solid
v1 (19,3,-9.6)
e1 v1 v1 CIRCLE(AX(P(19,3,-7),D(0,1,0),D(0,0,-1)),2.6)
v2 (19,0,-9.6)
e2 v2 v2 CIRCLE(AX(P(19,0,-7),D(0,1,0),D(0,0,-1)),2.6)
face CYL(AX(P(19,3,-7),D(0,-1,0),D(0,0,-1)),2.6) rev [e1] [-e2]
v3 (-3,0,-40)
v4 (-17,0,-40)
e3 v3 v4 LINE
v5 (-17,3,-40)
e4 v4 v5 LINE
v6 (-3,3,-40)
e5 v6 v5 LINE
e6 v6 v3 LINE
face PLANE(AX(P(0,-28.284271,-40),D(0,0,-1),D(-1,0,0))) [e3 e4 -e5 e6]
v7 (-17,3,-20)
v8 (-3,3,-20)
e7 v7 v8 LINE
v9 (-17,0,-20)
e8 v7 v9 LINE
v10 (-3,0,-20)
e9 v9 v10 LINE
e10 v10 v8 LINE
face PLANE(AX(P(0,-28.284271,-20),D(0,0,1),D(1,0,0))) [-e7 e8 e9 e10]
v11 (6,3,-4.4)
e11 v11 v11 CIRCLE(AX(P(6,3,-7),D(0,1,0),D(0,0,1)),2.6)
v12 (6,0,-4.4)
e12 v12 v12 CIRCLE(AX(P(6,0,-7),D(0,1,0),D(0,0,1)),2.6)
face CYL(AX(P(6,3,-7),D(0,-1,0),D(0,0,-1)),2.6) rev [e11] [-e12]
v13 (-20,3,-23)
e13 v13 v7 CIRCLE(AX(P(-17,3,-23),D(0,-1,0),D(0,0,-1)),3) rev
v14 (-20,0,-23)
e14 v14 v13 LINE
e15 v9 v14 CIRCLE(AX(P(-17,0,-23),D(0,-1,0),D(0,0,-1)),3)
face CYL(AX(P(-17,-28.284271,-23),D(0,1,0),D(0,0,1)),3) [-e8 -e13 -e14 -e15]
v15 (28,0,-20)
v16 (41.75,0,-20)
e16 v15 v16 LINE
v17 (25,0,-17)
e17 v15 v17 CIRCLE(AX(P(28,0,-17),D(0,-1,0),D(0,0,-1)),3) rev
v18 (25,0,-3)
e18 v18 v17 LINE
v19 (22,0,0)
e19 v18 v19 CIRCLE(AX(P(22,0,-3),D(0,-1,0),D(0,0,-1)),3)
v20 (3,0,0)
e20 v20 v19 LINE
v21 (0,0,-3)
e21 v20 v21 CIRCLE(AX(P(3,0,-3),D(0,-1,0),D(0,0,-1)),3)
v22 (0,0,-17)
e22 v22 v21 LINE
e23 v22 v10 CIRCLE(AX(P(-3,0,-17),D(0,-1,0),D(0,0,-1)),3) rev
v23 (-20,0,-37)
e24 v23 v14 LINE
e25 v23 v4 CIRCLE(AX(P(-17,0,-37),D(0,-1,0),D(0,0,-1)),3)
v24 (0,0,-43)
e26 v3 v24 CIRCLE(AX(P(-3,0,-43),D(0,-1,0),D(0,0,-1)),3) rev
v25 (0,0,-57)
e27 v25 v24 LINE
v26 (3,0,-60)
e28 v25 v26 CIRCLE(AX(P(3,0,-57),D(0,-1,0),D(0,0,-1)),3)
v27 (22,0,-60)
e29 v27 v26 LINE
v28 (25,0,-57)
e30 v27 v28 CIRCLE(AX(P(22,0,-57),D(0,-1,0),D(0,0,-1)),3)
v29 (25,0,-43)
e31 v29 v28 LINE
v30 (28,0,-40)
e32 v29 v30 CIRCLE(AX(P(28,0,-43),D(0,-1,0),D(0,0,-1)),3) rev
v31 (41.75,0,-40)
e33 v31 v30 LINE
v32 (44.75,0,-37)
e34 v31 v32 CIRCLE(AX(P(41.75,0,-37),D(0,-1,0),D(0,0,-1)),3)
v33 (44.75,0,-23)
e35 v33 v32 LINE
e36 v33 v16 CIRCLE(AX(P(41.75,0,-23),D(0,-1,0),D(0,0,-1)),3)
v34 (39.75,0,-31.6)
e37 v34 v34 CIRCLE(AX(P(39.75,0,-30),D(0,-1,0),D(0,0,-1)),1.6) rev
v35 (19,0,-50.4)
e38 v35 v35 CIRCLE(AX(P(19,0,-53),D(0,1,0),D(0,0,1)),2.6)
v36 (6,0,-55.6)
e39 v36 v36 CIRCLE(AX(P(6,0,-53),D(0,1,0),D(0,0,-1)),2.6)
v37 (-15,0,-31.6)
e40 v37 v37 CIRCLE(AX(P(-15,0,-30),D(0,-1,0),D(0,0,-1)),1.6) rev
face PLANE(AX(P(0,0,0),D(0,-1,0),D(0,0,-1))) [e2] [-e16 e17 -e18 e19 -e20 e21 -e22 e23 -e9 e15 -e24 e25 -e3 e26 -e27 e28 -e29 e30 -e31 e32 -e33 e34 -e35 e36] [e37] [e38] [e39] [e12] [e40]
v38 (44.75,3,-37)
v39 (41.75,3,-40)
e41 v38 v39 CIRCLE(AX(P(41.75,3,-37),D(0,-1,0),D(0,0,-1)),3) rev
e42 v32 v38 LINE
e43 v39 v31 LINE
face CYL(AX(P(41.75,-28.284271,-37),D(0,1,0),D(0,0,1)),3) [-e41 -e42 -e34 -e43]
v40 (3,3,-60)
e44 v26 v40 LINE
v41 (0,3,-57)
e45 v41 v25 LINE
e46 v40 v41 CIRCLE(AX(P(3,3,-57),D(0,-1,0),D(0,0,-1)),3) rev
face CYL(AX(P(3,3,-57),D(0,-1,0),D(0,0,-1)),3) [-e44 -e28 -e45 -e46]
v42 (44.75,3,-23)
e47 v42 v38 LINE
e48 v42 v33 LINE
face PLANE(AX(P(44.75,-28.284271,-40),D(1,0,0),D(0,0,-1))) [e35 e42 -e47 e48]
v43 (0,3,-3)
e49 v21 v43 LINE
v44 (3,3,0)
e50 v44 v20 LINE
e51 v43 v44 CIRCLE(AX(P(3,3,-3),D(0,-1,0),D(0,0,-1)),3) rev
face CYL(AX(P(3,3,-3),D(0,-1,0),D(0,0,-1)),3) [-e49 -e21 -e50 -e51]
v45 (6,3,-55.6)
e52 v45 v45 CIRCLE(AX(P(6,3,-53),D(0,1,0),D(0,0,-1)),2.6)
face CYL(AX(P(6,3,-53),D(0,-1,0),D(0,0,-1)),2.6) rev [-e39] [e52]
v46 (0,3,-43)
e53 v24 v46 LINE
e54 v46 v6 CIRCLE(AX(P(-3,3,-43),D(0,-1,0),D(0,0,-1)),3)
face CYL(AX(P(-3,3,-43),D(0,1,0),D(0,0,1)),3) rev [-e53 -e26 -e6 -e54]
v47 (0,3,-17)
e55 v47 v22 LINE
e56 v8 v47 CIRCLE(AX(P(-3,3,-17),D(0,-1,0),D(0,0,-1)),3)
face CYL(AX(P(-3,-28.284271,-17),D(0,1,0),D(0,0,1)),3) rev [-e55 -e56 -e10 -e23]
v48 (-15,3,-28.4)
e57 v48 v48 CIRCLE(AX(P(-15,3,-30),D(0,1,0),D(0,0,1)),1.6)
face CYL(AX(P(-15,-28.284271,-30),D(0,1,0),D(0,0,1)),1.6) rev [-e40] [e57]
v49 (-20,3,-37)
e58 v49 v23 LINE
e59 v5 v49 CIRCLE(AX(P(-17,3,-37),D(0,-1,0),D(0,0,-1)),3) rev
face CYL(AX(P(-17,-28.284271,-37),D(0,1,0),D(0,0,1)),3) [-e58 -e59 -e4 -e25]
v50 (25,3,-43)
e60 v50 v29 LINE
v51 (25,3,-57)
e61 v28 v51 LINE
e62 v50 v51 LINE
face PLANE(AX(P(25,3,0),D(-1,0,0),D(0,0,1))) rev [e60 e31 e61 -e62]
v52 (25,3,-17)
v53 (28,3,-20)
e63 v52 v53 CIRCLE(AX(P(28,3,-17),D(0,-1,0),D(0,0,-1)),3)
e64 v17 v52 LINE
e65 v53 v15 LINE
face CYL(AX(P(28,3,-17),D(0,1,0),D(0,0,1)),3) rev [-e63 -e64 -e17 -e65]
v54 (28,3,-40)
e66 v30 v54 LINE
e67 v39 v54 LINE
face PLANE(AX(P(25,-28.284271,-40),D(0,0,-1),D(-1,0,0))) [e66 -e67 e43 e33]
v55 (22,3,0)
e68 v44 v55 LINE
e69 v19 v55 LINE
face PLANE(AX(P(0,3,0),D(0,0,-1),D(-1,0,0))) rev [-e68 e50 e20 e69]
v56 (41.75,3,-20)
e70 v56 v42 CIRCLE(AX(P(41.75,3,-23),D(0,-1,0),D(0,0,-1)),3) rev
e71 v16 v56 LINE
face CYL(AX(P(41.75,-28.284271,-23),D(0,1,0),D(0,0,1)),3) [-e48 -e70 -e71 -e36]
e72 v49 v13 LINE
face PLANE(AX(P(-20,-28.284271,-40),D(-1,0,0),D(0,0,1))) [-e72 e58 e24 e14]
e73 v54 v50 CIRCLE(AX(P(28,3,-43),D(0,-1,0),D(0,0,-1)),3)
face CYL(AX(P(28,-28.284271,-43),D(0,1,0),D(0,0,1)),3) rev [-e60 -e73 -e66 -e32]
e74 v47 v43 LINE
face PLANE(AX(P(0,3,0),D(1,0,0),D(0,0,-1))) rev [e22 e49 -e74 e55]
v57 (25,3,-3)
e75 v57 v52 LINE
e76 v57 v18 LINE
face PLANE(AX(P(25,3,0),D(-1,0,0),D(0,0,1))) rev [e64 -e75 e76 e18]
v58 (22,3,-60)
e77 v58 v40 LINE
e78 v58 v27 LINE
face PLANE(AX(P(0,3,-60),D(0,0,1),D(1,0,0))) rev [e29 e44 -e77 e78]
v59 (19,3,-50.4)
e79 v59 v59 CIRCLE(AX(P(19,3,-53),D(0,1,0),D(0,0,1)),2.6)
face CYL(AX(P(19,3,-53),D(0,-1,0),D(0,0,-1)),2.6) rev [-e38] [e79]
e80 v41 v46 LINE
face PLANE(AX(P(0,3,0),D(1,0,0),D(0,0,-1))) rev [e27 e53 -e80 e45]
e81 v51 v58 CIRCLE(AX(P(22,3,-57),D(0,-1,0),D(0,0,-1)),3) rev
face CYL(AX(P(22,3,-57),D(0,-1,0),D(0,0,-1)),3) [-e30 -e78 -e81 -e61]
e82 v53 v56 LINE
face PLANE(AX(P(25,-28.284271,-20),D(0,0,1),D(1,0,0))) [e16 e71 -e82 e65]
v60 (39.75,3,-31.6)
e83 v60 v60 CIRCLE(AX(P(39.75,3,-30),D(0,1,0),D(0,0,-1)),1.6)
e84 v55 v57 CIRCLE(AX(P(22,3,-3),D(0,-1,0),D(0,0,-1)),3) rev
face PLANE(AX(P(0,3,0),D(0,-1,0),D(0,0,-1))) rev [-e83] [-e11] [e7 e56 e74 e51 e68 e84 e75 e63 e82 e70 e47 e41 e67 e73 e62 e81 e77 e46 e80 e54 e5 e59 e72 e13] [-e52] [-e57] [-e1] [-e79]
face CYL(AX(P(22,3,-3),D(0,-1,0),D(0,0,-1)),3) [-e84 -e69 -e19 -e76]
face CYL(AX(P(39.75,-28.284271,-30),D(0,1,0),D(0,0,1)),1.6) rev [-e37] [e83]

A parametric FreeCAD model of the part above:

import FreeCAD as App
import Part
import Sketcher

V = App.Vector


def edges_at(feature, points):
    """Names of the edges that pass closest to the given points."""
    edges = feature.Shape.Edges
    near = lambda p: min(range(len(edges)), key=lambda i: edges[i].distToShape(Part.Vertex(*p))[0])
    return sorted({f"Edge{near(p) + 1}" for p in points})

doc = App.newDocument("Part")
params = doc.addObject("Spreadsheet::Sheet", "Params")
for row, (alias, value) in enumerate([
    ("sketch1_diameter", "5.2 mm"),
    ("sketch1_width", "25 mm"),
    ("sketch1_height", "60 mm"),
    ("pad1_length", "3 mm"),
    ("sketch2_diameter", "3.2 mm"),
    ("sketch2_width", "20 mm"),
    ("sketch2_width2", "19.75 mm"),
    ("pad2_length", "3 mm"),
    ("fillet_radius", "3 mm"),
], start=1):
    params.set(f"A{row}", alias)
    params.set(f"B{row}", "=" + value)
    params.setAlias(f"B{row}", alias)

body = doc.addObject("PartDesign::Body", "Body")

sketch1 = body.newObject("Sketcher::SketchObject", "Sketch")
sketch1.AttachmentSupport = (doc.getObject("XZ_Plane"), [""])
sketch1.MapMode = "FlatFace"
sketch1.addGeometry(Part.LineSegment(V(0, -60, 0), V(0, 0, 0)), False)
sketch1.addGeometry(Part.LineSegment(V(0, 0, 0), V(25, 0, 0)), False)
sketch1.addGeometry(Part.LineSegment(V(25, 0, 0), V(25, -60, 0)), False)
sketch1.addGeometry(Part.LineSegment(V(25, -60, 0), V(0, -60, 0)), False)
sketch1.addGeometry(Part.Circle(V(6, -7, 0), V(0, 0, 1), 2.6), False)
sketch1.addGeometry(Part.Circle(V(19, -7, 0), V(0, 0, 1), 2.6), False)
sketch1.addGeometry(Part.Circle(V(6, -53, 0), V(0, 0, 1), 2.6), False)
sketch1.addGeometry(Part.Circle(V(19, -53, 0), V(0, 0, 1), 2.6), False)
sketch1.addConstraint(Sketcher.Constraint("Coincident", 0, 2, 1, 1))
sketch1.addConstraint(Sketcher.Constraint("Coincident", 1, 2, 2, 1))
sketch1.addConstraint(Sketcher.Constraint("Coincident", 2, 2, 3, 1))
sketch1.addConstraint(Sketcher.Constraint("Coincident", 3, 2, 0, 1))
sketch1.addConstraint(Sketcher.Constraint("Vertical", 0))
sketch1.addConstraint(Sketcher.Constraint("Horizontal", 1))
sketch1.addConstraint(Sketcher.Constraint("Vertical", 2))
sketch1.addConstraint(Sketcher.Constraint("Horizontal", 3))
sketch1.addConstraint(Sketcher.Constraint("Coincident", 0, 2, -1, 1))
sketch1.addConstraint(Sketcher.Constraint("Equal", 4, 5))
sketch1.addConstraint(Sketcher.Constraint("Equal", 5, 6))
sketch1.addConstraint(Sketcher.Constraint("Equal", 6, 7))
sketch1.addConstraint(Sketcher.Constraint("Horizontal", 4, 3, 5, 3))
sketch1.addConstraint(Sketcher.Constraint("Horizontal", 6, 3, 7, 3))
sketch1.addConstraint(Sketcher.Constraint("Vertical", 4, 3, 6, 3))
sketch1.addConstraint(Sketcher.Constraint("Vertical", 5, 3, 7, 3))
sketch1.addConstraint(Sketcher.Constraint("Diameter", 4, 5.2))
sketch1.addConstraint(Sketcher.Constraint("DistanceX", 1, 1, 1, 2, 25.0))
sketch1.addConstraint(Sketcher.Constraint("DistanceY", 0, 1, 0, 2, 60.0))
sketch1.addConstraint(Sketcher.Constraint("DistanceX", -1, 1, 4, 3, 6.0))
sketch1.addConstraint(Sketcher.Constraint("DistanceY", 4, 3, -1, 1, 7.0))
sketch1.addConstraint(Sketcher.Constraint("DistanceX", -1, 1, 5, 3, 19.0))
sketch1.addConstraint(Sketcher.Constraint("DistanceY", 6, 3, -1, 1, 53.0))
sketch1.setExpression("Constraints[16]", "Params.sketch1_diameter")
sketch1.setExpression("Constraints[17]", "Params.sketch1_width")
sketch1.setExpression("Constraints[18]", "Params.sketch1_height")
pad1 = body.newObject("PartDesign::Pad", "Pad")
pad1.Profile = sketch1
pad1.setExpression("Length", "Params.pad1_length")
pad1.Reversed = True

sketch2 = body.newObject("Sketcher::SketchObject", "Sketch001")
sketch2.AttachmentSupport = (doc.getObject("XZ_Plane"), [""])
sketch2.MapMode = "FlatFace"
sketch2.AttachmentOffset = App.Placement(V(0, 0, -3), App.Rotation())
sketch2.addGeometry(Part.LineSegment(V(-20, -40, 0), V(-20, -20, 0)), False)
sketch2.addGeometry(Part.LineSegment(V(-20, -20, 0), V(0, -20, 0)), False)
sketch2.addGeometry(Part.LineSegment(V(0, -20, 0), V(0, -40, 0)), False)
sketch2.addGeometry(Part.LineSegment(V(0, -40, 0), V(-20, -40, 0)), False)
sketch2.addGeometry(Part.Circle(V(-15, -30, 0), V(0, 0, 1), 1.6), False)
sketch2.addGeometry(Part.LineSegment(V(25, -40, 0), V(25, -20, 0)), False)
sketch2.addGeometry(Part.LineSegment(V(25, -20, 0), V(44.8, -20, 0)), False)
sketch2.addGeometry(Part.LineSegment(V(44.8, -20, 0), V(44.8, -40, 0)), False)
sketch2.addGeometry(Part.LineSegment(V(44.8, -40, 0), V(25, -40, 0)), False)
sketch2.addGeometry(Part.Circle(V(39.8, -30, 0), V(0, 0, 1), 1.6), False)
sketch2.addConstraint(Sketcher.Constraint("Coincident", 0, 2, 1, 1))
sketch2.addConstraint(Sketcher.Constraint("Coincident", 1, 2, 2, 1))
sketch2.addConstraint(Sketcher.Constraint("Coincident", 2, 2, 3, 1))
sketch2.addConstraint(Sketcher.Constraint("Coincident", 3, 2, 0, 1))
sketch2.addConstraint(Sketcher.Constraint("Coincident", 5, 2, 6, 1))
sketch2.addConstraint(Sketcher.Constraint("Coincident", 6, 2, 7, 1))
sketch2.addConstraint(Sketcher.Constraint("Coincident", 7, 2, 8, 1))
sketch2.addConstraint(Sketcher.Constraint("Coincident", 8, 2, 5, 1))
sketch2.addConstraint(Sketcher.Constraint("Vertical", 0))
sketch2.addConstraint(Sketcher.Constraint("Horizontal", 1))
sketch2.addConstraint(Sketcher.Constraint("Vertical", 2))
sketch2.addConstraint(Sketcher.Constraint("Horizontal", 3))
sketch2.addConstraint(Sketcher.Constraint("Vertical", 5))
sketch2.addConstraint(Sketcher.Constraint("Horizontal", 6))
sketch2.addConstraint(Sketcher.Constraint("Vertical", 7))
sketch2.addConstraint(Sketcher.Constraint("Horizontal", 8))
sketch2.addConstraint(Sketcher.Constraint("Equal", 4, 9))
sketch2.addConstraint(Sketcher.Constraint("PointOnObject", 1, 2, -2))
sketch2.addConstraint(Sketcher.Constraint("Horizontal", 4, 3, 9, 3))
sketch2.addConstraint(Sketcher.Constraint("Horizontal", 1, 2, 5, 2))
sketch2.addConstraint(Sketcher.Constraint("Horizontal", 3, 2, 7, 2))
sketch2.addConstraint(Sketcher.Constraint("Equal", 3, 0))
sketch2.addConstraint(Sketcher.Constraint("Diameter", 4, 3.2))
sketch2.addConstraint(Sketcher.Constraint("DistanceX", 1, 1, 1, 2, 20.0))
sketch2.addConstraint(Sketcher.Constraint("DistanceX", 4, 3, -1, 1, 15.0))
sketch2.addConstraint(Sketcher.Constraint("DistanceY", 4, 3, -1, 1, 30.0))
sketch2.addConstraint(Sketcher.Constraint("DistanceY", 0, 2, -1, 1, 20.0))
sketch2.addConstraint(Sketcher.Constraint("DistanceX", -1, 1, 5, 2, 25.0))
sketch2.addConstraint(Sketcher.Constraint("DistanceX", 9, 3, 6, 2, 5.0))
sketch2.addConstraint(Sketcher.Constraint("DistanceX", 6, 1, 6, 2, 19.75))
sketch2.setExpression("Constraints[22]", "Params.sketch2_diameter")
sketch2.setExpression("Constraints[23]", "Params.sketch2_width")
sketch2.setExpression("Constraints[29]", "Params.sketch2_width2")
pad2 = body.newObject("PartDesign::Pad", "Pad001")
pad2.Profile = sketch2
pad2.setExpression("Length", "Params.pad2_length")
doc.recompute()

fillet = body.newObject("PartDesign::Fillet", "Fillet")
fillet.Base = (pad2, edges_at(pad2, [
    (0, 1.5, -40),
    (0, 1.5, -20),
    (-20, 1.5, -20),
    (-20, 1.5, -40),
    (25, 1.5, -20),
    (25, 1.5, -40),
    (44.75, 1.5, -40),
    (44.75, 1.5, -20),
    (0, 1.5, -60),
    (25, 1.5, -60),
    (25, 1.5, 0),
    (0, 1.5, 0),
]))
fillet.setExpression("Radius", "Params.fillet_radius")

doc.recompute()
